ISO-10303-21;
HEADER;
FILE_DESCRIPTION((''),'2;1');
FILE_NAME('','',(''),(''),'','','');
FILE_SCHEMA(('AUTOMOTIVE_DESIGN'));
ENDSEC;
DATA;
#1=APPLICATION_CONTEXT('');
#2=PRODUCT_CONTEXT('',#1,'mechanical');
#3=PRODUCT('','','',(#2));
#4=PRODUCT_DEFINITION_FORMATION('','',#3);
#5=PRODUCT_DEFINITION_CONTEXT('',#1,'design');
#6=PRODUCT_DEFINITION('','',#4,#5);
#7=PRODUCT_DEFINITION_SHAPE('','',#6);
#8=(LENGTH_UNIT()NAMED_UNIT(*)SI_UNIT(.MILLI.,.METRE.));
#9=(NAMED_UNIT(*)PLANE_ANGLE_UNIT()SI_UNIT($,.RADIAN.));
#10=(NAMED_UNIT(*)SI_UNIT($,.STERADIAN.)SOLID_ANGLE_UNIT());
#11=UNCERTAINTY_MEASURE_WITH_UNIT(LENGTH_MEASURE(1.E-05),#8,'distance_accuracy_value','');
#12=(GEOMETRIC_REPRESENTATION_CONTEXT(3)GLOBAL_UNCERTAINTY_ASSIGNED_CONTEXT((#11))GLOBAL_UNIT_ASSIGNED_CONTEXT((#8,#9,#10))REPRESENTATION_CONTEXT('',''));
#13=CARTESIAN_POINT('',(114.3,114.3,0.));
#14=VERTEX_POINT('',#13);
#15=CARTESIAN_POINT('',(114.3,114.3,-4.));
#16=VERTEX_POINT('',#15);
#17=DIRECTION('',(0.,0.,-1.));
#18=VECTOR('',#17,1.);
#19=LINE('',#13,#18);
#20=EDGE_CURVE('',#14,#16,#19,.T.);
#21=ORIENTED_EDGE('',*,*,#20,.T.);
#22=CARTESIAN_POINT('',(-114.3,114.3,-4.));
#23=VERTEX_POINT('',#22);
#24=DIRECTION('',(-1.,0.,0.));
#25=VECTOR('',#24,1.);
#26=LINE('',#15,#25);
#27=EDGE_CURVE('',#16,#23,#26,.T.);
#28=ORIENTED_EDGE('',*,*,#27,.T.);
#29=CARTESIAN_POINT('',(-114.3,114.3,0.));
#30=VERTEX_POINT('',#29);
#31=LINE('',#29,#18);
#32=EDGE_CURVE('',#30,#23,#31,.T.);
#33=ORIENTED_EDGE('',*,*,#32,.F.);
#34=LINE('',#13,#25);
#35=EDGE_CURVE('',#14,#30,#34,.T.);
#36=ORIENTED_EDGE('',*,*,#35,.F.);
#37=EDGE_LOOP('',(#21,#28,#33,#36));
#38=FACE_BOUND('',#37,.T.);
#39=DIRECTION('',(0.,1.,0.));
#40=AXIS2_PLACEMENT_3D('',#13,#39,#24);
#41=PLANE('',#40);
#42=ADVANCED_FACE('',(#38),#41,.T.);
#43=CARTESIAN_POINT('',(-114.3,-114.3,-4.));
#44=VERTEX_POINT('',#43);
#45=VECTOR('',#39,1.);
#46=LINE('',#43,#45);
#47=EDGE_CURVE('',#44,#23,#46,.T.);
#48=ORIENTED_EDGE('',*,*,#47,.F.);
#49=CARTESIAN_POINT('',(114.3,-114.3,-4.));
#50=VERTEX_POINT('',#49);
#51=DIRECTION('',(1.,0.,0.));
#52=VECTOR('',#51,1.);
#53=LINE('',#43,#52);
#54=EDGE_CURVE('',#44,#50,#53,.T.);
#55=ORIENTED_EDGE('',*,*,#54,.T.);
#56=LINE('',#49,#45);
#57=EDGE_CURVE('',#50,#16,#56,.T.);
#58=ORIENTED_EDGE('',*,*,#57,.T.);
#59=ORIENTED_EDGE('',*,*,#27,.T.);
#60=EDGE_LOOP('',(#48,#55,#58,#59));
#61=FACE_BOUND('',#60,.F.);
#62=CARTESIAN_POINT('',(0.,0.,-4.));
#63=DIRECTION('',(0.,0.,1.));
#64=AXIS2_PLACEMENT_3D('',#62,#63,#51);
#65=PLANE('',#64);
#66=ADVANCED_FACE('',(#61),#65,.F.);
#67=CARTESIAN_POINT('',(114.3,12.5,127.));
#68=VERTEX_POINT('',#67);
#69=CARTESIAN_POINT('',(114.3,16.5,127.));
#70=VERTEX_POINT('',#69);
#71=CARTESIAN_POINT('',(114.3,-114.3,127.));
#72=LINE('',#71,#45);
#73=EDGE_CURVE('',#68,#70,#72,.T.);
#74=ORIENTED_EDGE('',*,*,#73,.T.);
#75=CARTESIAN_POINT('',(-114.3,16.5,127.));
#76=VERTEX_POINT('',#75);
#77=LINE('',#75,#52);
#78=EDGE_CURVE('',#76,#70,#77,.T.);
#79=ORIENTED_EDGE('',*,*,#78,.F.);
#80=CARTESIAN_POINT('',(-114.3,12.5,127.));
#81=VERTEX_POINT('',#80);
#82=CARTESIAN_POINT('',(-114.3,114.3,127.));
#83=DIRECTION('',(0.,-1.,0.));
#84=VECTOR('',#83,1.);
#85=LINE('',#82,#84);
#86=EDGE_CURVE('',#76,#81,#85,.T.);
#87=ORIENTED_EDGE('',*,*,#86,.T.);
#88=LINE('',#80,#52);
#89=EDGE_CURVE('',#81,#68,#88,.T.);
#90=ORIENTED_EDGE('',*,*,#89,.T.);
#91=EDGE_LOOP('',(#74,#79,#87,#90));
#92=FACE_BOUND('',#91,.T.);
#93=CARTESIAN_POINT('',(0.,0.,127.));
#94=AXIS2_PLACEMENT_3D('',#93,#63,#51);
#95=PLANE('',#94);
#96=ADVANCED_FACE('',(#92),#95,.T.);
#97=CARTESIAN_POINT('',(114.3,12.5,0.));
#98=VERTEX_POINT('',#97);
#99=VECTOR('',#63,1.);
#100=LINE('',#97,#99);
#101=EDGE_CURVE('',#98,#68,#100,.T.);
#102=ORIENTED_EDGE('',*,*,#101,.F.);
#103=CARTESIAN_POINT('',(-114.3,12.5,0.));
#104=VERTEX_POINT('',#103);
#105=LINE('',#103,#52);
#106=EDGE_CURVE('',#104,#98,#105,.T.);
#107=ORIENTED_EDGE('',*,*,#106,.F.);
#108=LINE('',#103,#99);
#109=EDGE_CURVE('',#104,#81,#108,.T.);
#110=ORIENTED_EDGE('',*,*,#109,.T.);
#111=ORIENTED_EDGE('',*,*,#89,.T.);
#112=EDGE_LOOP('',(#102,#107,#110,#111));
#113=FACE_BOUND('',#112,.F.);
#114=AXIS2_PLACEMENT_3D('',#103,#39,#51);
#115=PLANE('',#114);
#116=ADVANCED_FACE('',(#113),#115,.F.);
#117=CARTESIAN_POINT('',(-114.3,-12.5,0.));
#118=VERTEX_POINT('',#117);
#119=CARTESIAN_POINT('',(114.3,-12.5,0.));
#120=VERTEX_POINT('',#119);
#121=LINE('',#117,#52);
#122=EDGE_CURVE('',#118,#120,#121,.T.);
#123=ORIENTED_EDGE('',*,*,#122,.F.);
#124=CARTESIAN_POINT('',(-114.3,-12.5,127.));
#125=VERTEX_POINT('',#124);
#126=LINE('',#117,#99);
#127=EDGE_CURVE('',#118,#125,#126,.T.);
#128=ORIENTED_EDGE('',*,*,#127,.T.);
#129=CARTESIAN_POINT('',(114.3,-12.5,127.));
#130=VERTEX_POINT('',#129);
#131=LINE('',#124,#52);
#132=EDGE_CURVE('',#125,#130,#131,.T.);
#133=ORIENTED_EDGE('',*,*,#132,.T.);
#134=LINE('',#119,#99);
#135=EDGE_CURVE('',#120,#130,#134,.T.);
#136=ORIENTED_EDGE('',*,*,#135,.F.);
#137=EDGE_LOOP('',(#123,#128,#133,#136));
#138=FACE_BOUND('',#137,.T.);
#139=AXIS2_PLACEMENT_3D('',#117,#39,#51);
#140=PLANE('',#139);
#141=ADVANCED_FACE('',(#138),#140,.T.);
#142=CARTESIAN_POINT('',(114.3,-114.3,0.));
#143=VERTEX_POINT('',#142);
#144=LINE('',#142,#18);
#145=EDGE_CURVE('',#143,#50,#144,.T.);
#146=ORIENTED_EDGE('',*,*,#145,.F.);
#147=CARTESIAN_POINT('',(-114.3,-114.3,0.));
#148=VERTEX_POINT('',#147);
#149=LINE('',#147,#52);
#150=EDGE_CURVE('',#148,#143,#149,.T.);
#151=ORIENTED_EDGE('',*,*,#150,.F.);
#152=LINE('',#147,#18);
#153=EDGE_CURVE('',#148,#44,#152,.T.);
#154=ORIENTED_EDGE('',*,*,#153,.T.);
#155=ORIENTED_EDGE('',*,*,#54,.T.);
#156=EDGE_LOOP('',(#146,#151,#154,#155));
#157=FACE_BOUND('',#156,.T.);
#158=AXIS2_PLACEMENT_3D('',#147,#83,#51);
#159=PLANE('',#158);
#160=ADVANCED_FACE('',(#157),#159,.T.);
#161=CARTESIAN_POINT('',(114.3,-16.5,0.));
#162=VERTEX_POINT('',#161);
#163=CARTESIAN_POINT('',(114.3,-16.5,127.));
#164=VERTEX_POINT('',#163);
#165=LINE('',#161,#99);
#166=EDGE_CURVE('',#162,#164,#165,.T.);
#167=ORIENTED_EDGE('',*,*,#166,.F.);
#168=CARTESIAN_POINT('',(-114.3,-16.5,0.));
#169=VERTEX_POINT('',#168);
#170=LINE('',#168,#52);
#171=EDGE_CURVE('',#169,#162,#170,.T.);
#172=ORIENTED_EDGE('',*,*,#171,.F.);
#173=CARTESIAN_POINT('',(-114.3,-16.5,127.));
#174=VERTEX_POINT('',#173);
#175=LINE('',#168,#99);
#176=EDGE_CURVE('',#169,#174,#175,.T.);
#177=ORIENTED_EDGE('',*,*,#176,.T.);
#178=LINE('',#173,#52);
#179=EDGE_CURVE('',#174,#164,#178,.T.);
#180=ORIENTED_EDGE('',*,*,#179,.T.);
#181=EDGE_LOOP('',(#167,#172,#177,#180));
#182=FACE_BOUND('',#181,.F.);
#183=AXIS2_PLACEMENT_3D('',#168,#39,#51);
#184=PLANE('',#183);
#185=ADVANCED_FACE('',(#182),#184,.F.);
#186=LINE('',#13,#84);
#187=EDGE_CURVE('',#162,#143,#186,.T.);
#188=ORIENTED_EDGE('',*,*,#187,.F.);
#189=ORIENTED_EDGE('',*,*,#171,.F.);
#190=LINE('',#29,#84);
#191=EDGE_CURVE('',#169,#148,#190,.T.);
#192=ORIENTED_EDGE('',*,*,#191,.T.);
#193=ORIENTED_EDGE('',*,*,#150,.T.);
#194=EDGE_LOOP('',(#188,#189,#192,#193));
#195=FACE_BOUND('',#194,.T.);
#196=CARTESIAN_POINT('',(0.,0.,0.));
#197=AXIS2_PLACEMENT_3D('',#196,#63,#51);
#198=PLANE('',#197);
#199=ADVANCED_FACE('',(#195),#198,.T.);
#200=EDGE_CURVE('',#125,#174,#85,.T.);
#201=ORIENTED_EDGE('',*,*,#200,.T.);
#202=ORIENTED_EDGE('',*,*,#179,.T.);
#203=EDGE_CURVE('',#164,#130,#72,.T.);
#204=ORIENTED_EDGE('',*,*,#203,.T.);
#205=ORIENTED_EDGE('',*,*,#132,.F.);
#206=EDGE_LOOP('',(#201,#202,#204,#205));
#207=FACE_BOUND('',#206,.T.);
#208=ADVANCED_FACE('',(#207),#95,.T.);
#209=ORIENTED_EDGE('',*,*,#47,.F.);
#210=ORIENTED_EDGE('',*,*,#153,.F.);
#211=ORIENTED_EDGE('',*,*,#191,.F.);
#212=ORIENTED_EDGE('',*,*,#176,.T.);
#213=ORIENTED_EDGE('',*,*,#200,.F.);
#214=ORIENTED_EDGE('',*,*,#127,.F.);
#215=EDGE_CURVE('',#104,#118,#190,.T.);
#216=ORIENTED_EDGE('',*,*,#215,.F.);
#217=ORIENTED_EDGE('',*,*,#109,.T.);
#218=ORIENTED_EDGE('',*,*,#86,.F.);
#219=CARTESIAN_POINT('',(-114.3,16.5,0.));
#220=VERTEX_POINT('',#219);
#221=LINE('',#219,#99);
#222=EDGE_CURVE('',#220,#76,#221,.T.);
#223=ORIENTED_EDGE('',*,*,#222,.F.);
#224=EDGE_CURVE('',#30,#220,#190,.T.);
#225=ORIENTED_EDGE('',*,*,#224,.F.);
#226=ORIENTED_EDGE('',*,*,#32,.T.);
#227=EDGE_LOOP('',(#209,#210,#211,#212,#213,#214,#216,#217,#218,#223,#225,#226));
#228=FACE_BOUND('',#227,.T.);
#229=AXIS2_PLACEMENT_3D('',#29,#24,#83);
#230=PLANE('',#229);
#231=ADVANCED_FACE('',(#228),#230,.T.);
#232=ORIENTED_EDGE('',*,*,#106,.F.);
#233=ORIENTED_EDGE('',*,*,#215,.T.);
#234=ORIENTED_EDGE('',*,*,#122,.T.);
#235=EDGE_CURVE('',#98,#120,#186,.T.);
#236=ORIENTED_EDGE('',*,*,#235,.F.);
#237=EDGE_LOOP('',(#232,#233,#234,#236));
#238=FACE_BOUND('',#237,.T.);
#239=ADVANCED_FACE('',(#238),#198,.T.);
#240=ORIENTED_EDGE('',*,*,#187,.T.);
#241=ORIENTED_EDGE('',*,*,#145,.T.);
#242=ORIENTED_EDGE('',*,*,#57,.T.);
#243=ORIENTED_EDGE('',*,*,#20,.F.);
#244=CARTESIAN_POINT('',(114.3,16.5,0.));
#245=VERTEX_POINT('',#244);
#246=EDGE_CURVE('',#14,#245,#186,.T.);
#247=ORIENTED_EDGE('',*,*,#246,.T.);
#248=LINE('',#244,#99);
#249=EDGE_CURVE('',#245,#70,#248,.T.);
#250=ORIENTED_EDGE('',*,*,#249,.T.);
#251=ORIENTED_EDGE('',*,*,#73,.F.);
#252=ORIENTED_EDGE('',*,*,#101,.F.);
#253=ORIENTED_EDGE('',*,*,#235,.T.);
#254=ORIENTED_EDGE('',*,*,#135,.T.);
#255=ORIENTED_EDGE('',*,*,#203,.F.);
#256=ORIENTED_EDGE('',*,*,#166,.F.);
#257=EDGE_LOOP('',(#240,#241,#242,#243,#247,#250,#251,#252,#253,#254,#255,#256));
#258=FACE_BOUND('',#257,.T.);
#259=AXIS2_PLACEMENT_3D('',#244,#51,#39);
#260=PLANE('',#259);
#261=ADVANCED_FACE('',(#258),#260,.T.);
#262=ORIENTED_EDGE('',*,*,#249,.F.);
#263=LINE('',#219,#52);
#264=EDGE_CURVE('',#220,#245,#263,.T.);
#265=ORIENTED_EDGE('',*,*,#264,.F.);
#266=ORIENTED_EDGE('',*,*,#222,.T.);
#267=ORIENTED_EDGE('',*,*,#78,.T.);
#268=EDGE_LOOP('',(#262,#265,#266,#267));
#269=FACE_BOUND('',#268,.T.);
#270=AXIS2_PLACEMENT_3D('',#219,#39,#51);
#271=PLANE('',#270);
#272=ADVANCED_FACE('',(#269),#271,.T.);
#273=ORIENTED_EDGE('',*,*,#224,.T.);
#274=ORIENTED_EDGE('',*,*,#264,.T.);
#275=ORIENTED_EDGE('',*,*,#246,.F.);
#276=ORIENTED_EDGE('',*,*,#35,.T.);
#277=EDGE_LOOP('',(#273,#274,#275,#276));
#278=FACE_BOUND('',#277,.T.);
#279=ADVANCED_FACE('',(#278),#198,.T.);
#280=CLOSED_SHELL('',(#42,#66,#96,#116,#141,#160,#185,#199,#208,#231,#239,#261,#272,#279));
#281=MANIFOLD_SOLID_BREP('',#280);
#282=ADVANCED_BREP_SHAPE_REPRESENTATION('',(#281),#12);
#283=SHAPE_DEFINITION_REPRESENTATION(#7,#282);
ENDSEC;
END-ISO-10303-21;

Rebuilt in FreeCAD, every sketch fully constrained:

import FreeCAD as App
import Part
import Sketcher

V = App.Vector
Q = App.Units.Quantity

doc = App.newDocument("Part")
body = doc.addObject("PartDesign::Body", "Body")

sketch1 = body.newObject("Sketcher::SketchObject", "Sketch")
sketch1.AttachmentSupport = (doc.getObject("XY_Plane"), [""])
sketch1.MapMode = "FlatFace"
sketch1.addGeometry([
    Part.LineSegment(V(114, 114, 0), V(-114, 114, 0)),
    Part.LineSegment(V(-114, 114, 0), V(-114, -114, 0)),
    Part.LineSegment(V(-114, -114, 0), V(114, -114, 0)),
    Part.LineSegment(V(114, -114, 0), V(114, 114, 0)),
], False)
sketch1.addConstraint([
    Sketcher.Constraint("Coincident", 0, 2, 1, 1),
    Sketcher.Constraint("Coincident", 1, 2, 2, 1),
    Sketcher.Constraint("Coincident", 2, 2, 3, 1),
    Sketcher.Constraint("Coincident", 3, 2, 0, 1),
    Sketcher.Constraint("Horizontal", 0),
    Sketcher.Constraint("Vertical", 1),
    Sketcher.Constraint("Horizontal", 2),
    Sketcher.Constraint("Vertical", 3),
    Sketcher.Constraint("Symmetric", 0, 2, 2, 2, -1, 1),
    Sketcher.Constraint("Equal", 2, 1),
    Sketcher.Constraint("DistanceX", 0, 2, 0, 1, Q("9 in")),
])
pad1 = body.newObject("PartDesign::Pad", "Pad")
pad1.Profile = sketch1
pad1.Length = 4
pad1.Reversed = True

sketch2 = body.newObject("Sketcher::SketchObject", "Sketch001")
sketch2.AttachmentSupport = (doc.getObject("XY_Plane"), [""])
sketch2.MapMode = "FlatFace"
sketch2.addGeometry([
    Part.LineSegment(V(114.3, 12.5, 0), V(114.3, 16.5, 0)),
    Part.LineSegment(V(114.3, 16.5, 0), V(-114.3, 16.5, 0)),
    Part.LineSegment(V(-114.3, 16.5, 0), V(-114.3, 12.5, 0)),
    Part.LineSegment(V(-114.3, 12.5, 0), V(114.3, 12.5, 0)),
    Part.LineSegment(V(114.3, -16.5, 0), V(114.3, -12.5, 0)),
    Part.LineSegment(V(114.3, -12.5, 0), V(-114.3, -12.5, 0)),
    Part.LineSegment(V(-114.3, -12.5, 0), V(-114.3, -16.5, 0)),
    Part.LineSegment(V(-114.3, -16.5, 0), V(114.3, -16.5, 0)),
], False)
sketch2.addConstraint([
    Sketcher.Constraint("Coincident", 0, 2, 1, 1),
    Sketcher.Constraint("Coincident", 1, 2, 2, 1),
    Sketcher.Constraint("Coincident", 2, 2, 3, 1),
    Sketcher.Constraint("Coincident", 3, 2, 0, 1),
    Sketcher.Constraint("Coincident", 4, 2, 5, 1),
    Sketcher.Constraint("Coincident", 5, 2, 6, 1),
    Sketcher.Constraint("Coincident", 6, 2, 7, 1),
    Sketcher.Constraint("Coincident", 7, 2, 4, 1),
    Sketcher.Constraint("Vertical", 0),
    Sketcher.Constraint("Horizontal", 1),
    Sketcher.Constraint("Vertical", 2),
    Sketcher.Constraint("Horizontal", 3),
    Sketcher.Constraint("Vertical", 4),
    Sketcher.Constraint("Horizontal", 5),
    Sketcher.Constraint("Vertical", 6),
    Sketcher.Constraint("Horizontal", 7),
    Sketcher.Constraint("Symmetric", 2, 2, 4, 2, -1, 1),
    Sketcher.Constraint("Symmetric", 0, 2, 6, 2, -1, 1),
    Sketcher.Constraint("Vertical", 3, 2, 4, 2),
    Sketcher.Constraint("DistanceX", 1, 2, 1, 1, Q("9 in")),
    Sketcher.Constraint("DistanceY", 0, 1, 0, 2, 4.0),
    Sketcher.Constraint("DistanceY", -1, 1, 2, 2, 12.5),
])
pad2 = body.newObject("PartDesign::Pad", "Pad001")
pad2.Profile = sketch2
pad2.Length = Q("5 in")

doc.recompute()
